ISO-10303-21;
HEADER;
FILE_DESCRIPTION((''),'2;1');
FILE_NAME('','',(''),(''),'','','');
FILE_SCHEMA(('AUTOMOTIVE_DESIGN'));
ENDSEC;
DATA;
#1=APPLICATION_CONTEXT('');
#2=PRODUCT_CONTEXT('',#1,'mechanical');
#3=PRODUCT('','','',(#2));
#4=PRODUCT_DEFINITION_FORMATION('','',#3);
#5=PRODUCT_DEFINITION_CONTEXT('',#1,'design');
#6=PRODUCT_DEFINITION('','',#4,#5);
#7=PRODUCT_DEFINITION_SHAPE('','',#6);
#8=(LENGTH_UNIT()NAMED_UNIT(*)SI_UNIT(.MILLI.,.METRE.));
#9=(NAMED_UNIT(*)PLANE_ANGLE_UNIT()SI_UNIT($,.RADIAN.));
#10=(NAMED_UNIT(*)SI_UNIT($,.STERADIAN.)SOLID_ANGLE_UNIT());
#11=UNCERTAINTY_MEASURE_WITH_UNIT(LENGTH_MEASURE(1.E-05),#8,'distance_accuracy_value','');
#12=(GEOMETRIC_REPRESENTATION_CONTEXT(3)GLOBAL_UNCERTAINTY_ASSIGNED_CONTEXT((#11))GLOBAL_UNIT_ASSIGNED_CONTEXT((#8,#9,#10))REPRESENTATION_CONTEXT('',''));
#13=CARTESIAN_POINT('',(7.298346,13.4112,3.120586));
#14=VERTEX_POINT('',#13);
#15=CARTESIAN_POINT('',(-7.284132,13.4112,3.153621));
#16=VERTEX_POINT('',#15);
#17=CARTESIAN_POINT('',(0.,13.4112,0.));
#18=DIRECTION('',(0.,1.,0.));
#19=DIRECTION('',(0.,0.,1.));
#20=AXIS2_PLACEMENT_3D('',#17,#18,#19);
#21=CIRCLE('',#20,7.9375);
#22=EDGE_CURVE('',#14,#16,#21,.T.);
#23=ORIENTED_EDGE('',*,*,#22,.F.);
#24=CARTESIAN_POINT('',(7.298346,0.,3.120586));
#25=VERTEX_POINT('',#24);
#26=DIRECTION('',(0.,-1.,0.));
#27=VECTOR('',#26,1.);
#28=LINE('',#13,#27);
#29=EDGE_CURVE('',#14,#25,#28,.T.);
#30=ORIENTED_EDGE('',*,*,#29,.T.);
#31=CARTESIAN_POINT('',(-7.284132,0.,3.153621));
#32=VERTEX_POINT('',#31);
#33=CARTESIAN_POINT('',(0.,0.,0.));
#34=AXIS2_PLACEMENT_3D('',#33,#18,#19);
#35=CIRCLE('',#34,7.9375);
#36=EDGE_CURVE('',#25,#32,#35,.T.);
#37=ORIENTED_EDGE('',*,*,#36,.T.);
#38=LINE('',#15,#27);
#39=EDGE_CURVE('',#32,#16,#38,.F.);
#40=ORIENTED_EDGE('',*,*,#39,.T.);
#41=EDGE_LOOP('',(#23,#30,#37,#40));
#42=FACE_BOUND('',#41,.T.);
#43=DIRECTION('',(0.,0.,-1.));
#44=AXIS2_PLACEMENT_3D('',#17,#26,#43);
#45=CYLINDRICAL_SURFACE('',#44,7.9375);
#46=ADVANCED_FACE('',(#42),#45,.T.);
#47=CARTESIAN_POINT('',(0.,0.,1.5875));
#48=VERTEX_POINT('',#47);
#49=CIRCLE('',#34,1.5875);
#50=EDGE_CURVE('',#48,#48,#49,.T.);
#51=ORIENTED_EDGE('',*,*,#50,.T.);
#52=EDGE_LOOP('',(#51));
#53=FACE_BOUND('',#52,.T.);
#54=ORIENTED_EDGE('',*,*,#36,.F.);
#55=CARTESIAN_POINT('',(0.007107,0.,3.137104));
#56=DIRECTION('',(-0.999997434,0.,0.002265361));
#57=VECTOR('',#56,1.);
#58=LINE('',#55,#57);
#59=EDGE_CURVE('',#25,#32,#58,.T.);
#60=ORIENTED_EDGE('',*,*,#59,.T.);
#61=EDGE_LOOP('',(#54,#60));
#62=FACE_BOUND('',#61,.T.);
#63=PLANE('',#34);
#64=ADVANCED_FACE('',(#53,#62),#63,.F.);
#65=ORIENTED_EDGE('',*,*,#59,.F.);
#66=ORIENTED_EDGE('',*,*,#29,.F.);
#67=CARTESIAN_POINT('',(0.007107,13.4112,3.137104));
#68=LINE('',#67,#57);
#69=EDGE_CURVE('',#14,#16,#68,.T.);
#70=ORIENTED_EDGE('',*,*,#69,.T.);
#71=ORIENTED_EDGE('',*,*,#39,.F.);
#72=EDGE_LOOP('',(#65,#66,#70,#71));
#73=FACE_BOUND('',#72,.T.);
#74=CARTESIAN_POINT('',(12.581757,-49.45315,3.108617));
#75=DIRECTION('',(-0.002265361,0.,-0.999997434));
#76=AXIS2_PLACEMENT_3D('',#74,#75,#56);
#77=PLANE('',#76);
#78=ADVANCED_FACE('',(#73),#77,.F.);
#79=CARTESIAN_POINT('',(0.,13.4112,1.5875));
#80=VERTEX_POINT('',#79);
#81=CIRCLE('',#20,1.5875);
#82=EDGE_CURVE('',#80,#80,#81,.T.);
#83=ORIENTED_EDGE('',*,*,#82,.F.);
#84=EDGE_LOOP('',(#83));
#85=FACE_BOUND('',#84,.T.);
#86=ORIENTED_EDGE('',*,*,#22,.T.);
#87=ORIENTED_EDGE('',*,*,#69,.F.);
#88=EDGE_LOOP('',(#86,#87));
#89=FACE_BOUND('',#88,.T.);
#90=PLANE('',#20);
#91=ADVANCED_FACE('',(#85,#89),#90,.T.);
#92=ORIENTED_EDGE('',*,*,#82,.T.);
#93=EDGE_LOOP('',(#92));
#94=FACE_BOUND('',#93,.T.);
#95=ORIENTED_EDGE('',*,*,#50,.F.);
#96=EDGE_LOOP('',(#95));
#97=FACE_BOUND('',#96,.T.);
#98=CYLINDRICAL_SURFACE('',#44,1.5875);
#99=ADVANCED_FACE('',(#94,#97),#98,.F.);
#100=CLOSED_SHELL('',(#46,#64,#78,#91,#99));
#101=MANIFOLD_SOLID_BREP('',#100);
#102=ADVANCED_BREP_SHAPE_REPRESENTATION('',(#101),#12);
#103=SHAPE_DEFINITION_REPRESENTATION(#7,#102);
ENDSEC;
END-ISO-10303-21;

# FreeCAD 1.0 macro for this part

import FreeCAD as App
import Part
import Sketcher
from FreeCAD import Vector
Q = App.Units.Quantity

doc = App.newDocument("Part")
body = doc.addObject("PartDesign::Body", "Body")

sketch1 = doc.addObject("Sketcher::SketchObject", "Sketch")
body.addObject(sketch1)
sketch1.AttachmentSupport = (doc.XZ_Plane, [""])
sketch1.MapMode = "FlatFace"
sketch1.addGeometry([
    Part.Circle(Vector(0, 0, 0), Vector(0, 0, 1), 7.9375),
    Part.Circle(Vector(0, 0, 0), Vector(0, 0, 1), 1.5875),
], False)
sketch1.addConstraint([
    Sketcher.Constraint("Coincident", 0, 3, -1, 1),
    Sketcher.Constraint("Coincident", 1, 3, -1, 1),
    Sketcher.Constraint("Diameter", 0, Q("0.625 in")),
    Sketcher.Constraint("Diameter", 1, Q("0.125 in")),
])
pad1 = doc.addObject("PartDesign::Pad", "Pad")
body.addObject(pad1)
pad1.Profile = sketch1
pad1.Length = Q("0.528 in")
pad1.Reversed = True

sketch2 = doc.addObject("Sketcher::SketchObject", "Sketch001")
body.addObject(sketch2)
sketch2.AttachmentSupport = (doc.XZ_Plane, [""])
sketch2.MapMode = "FlatFace"
sketch2.addGeometry([
    Part.LineSegment(Vector(12.581757, 3.108617, 0), Vector(70.10965, 2.978296, 0)),
    Part.LineSegment(Vector(70.10965, 2.978296, 0), Vector(70.370293, 118.034082, 0)),
    Part.LineSegment(Vector(70.370293, 118.034082, 0), Vector(-70.339858, 118.352842, 0)),
    Part.LineSegment(Vector(-70.339858, 118.352842, 0), Vector(-70.600501, 3.297056, 0)),
    Part.LineSegment(Vector(-70.600501, 3.297056, 0), Vector(-13.072608, 3.166734, 0)),
    Part.LineSegment(Vector(-13.072608, 3.166734, 0), Vector(12.581757, 3.108617, 0)),
], False)
sketch2.addConstraint([
    Sketcher.Constraint("Coincident", 0, 2, 1, 1),
    Sketcher.Constraint("Coincident", 1, 2, 2, 1),
    Sketcher.Constraint("Coincident", 2, 2, 3, 1),
    Sketcher.Constraint("Coincident", 3, 2, 4, 1),
    Sketcher.Constraint("Coincident", 4, 2, 5, 1),
    Sketcher.Constraint("Coincident", 5, 2, 0, 1),
    Sketcher.Constraint("Perpendicular", 0, 1),
    Sketcher.Constraint("Perpendicular", 1, 2),
    Sketcher.Constraint("Perpendicular", 2, 3),
    Sketcher.Constraint("Perpendicular", 3, 4),
    Sketcher.Constraint("Parallel", 4, 5),
    Sketcher.Constraint("Equal", 0, 4),
    Sketcher.Constraint("DistanceX", 3, 2, -1, 1, 70.600501),
    Sketcher.Constraint("DistanceX", 4, 2, 1, 2, 83.442901),
    Sketcher.Constraint("Distance", 0, 57.528041),
    Sketcher.Constraint("Distance", 1, 115.056081),
    Sketcher.Constraint("Distance", 2, 140.710512),
    Sketcher.Constraint("DistanceY", -1, 1, 1, 2, 118.034082),
])
pocket1 = doc.addObject("PartDesign::Pocket", "Pocket")
body.addObject(pocket1)
pocket1.Profile = sketch2
pocket1.Type = "ThroughAll"
pocket1.Midplane = True

doc.recompute()
